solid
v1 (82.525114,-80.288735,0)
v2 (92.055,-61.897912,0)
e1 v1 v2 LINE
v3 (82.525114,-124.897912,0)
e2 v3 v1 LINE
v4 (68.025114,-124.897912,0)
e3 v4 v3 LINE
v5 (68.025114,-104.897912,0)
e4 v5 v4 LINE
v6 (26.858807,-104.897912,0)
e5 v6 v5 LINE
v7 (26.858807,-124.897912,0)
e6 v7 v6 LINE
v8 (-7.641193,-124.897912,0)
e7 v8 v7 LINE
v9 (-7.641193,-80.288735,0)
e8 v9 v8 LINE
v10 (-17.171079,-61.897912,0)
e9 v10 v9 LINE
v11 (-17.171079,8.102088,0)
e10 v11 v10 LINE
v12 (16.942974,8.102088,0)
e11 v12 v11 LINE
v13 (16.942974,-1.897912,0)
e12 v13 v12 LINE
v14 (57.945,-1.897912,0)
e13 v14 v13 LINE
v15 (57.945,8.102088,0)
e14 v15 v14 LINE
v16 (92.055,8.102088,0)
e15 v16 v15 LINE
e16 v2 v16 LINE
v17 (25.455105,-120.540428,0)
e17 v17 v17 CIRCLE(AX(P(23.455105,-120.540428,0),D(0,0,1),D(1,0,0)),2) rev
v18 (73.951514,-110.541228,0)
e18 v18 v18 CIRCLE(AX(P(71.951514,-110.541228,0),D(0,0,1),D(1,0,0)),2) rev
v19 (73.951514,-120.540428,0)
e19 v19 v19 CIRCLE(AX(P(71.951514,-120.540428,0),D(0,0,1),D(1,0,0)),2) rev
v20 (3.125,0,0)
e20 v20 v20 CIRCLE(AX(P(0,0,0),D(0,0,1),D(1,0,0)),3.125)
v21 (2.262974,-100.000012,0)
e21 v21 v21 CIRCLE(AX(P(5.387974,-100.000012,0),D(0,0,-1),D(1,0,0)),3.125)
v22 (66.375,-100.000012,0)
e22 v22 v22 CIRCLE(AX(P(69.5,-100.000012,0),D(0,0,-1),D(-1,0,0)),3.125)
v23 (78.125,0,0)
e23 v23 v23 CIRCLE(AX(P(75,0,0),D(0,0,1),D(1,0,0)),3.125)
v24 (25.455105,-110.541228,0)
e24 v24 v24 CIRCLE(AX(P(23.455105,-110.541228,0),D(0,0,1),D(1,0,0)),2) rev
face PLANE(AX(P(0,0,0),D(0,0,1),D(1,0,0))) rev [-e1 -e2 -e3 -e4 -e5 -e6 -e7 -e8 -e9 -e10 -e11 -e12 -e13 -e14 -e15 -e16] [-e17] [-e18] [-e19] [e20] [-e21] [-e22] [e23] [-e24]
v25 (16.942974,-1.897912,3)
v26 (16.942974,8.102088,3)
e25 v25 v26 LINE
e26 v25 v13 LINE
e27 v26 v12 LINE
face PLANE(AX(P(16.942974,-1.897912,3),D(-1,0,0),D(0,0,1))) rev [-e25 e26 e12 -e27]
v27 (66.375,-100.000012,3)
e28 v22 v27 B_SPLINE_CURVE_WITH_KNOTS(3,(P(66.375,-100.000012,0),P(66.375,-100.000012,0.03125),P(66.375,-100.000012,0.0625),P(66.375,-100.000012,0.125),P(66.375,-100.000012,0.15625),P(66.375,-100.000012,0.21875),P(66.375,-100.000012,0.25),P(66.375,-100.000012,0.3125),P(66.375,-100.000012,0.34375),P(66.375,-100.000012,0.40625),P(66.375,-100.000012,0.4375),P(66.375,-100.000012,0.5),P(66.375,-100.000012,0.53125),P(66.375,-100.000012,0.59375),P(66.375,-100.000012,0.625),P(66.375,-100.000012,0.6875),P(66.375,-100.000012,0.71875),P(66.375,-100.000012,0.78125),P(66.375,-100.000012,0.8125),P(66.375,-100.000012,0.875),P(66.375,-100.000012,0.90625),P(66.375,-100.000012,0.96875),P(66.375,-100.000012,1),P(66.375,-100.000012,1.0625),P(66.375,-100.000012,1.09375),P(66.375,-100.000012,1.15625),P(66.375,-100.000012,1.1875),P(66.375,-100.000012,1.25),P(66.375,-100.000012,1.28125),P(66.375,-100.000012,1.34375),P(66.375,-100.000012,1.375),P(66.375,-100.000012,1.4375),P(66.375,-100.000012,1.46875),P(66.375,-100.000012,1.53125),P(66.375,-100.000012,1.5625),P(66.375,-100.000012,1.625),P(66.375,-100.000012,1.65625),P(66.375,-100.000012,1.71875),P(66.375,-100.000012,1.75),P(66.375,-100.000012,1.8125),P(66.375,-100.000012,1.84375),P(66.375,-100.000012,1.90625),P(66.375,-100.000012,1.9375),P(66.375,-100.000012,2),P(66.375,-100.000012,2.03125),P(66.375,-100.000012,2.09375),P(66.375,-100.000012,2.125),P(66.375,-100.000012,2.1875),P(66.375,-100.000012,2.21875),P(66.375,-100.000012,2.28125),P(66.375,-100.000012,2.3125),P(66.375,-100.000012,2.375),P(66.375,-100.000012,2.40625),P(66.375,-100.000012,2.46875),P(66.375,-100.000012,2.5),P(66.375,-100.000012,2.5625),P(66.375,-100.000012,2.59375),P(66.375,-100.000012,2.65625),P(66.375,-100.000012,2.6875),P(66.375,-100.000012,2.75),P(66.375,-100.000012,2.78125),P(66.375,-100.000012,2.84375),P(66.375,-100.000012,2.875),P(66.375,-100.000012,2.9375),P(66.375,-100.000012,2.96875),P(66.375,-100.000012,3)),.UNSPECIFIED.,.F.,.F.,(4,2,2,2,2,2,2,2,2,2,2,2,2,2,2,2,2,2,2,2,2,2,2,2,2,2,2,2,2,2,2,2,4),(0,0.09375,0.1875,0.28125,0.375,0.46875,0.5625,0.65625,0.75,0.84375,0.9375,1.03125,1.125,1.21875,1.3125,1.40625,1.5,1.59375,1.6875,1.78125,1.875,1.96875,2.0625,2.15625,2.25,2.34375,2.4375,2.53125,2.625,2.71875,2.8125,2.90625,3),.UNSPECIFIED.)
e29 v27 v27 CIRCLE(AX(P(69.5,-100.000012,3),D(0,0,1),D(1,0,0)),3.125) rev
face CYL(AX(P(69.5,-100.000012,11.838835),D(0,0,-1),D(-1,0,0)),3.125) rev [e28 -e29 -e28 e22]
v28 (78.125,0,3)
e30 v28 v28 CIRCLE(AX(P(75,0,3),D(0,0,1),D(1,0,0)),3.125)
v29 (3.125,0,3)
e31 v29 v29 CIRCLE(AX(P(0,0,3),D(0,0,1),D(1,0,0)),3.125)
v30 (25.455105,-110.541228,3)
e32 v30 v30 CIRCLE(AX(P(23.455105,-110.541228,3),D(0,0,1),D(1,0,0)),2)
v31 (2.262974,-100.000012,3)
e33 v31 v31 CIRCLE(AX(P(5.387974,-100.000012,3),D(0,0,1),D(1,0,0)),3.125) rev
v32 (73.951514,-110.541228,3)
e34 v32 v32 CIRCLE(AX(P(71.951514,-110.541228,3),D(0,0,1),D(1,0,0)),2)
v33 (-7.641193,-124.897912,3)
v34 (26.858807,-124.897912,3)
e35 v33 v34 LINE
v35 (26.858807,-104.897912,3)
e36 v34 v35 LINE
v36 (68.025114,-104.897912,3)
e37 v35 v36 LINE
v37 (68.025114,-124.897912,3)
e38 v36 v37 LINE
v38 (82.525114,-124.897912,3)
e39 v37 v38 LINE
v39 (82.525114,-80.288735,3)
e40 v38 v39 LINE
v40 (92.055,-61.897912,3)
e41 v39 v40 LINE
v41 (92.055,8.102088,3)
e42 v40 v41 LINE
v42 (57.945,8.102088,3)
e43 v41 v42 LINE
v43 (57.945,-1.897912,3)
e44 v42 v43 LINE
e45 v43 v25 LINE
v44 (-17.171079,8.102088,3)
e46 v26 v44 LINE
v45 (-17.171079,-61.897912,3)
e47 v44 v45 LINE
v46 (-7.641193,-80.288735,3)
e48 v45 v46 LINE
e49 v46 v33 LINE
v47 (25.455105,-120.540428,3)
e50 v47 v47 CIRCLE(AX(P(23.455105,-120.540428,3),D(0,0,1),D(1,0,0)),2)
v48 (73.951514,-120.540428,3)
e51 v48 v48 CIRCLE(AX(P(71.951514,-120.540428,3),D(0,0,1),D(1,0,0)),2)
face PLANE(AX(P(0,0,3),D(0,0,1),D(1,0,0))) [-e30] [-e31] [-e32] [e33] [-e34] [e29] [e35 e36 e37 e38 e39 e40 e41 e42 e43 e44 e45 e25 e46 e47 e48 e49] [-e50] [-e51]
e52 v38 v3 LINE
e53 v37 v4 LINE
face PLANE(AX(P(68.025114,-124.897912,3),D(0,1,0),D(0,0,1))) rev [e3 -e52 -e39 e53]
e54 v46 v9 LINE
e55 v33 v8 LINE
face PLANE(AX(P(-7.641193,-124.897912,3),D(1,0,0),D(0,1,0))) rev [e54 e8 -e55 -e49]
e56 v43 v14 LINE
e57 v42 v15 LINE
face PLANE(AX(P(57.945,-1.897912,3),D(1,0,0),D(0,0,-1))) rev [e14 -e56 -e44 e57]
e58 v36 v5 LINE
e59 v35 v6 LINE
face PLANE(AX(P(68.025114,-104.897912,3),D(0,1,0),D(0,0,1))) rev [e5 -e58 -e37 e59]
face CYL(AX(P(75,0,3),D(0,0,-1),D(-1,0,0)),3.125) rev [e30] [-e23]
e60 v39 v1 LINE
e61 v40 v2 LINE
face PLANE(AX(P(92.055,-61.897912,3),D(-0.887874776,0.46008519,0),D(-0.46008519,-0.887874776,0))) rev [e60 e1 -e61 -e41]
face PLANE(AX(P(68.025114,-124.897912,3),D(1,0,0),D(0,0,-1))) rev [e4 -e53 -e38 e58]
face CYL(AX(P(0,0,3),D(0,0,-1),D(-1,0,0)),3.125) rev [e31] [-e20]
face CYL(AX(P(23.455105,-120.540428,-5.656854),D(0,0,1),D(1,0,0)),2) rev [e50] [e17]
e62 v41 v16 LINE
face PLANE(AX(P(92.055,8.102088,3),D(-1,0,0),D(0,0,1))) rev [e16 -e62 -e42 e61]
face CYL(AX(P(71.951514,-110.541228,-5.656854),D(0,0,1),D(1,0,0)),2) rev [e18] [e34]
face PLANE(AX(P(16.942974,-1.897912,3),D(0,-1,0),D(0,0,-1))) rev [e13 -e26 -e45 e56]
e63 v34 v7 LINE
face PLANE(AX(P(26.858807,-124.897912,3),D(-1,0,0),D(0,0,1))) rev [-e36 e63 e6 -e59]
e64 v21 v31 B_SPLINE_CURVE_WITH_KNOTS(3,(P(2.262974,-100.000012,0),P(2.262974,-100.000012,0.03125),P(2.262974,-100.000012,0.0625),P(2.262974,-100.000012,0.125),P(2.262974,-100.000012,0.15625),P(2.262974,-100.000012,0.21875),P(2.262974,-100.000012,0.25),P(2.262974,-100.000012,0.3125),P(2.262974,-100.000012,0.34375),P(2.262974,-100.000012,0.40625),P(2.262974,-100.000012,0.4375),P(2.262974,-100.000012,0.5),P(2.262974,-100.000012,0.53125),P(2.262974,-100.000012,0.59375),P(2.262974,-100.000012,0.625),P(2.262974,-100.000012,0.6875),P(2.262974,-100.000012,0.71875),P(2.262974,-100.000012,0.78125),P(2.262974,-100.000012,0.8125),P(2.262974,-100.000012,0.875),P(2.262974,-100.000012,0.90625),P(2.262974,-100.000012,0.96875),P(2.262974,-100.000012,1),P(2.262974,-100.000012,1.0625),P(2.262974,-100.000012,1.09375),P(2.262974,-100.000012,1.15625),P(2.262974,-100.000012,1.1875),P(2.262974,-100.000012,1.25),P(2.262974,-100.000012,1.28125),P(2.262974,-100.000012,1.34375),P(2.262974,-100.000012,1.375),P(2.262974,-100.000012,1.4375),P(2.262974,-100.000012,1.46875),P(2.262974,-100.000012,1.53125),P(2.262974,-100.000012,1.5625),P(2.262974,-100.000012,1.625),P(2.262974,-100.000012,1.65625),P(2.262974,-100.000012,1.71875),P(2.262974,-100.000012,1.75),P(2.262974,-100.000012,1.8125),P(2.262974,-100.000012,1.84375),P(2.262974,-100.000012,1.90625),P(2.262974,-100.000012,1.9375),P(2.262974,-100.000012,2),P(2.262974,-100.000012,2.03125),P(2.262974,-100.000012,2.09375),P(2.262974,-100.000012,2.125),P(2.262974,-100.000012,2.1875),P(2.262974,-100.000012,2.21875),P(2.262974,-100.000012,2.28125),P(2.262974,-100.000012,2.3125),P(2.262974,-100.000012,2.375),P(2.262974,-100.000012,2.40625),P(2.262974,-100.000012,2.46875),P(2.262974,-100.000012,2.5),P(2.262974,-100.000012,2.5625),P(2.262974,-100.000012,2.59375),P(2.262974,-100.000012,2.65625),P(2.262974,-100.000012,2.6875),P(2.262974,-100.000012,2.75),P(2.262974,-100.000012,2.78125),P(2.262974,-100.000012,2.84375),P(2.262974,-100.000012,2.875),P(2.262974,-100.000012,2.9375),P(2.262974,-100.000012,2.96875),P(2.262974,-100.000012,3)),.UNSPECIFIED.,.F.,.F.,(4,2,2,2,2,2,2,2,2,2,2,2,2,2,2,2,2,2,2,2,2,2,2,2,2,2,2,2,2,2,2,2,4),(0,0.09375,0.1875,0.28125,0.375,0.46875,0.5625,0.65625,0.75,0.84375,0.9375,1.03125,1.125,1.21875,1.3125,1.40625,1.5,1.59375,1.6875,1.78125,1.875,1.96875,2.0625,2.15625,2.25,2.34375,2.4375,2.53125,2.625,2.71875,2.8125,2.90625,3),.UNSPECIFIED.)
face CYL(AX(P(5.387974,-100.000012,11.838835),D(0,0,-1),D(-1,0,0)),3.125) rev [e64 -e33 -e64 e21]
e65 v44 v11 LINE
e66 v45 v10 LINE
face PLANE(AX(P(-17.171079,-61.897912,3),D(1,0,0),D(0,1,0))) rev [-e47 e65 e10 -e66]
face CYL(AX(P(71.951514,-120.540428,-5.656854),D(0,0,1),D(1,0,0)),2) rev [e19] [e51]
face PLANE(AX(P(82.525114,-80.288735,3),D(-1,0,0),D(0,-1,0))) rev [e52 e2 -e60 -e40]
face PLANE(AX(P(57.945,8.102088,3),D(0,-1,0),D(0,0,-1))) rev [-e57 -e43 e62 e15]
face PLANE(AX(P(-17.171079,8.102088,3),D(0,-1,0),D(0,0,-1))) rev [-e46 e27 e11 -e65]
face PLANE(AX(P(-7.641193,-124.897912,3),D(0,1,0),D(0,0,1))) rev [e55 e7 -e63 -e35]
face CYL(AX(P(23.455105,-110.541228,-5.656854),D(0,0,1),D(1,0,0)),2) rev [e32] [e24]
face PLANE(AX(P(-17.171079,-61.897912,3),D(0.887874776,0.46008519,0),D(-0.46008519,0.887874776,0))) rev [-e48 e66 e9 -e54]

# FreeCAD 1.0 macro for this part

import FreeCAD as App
import Part
import Sketcher
from FreeCAD import Vector


def add_polygon(sketch, points):
    """Adds a closed chain of lines whose ends are joined by coincident constraints."""
    first, n = sketch.GeometryCount, len(points)
    for a, b in zip(points, points[1:] + points[:1]):
        sketch.addGeometry(Part.LineSegment(App.Vector(*a, 0), App.Vector(*b, 0)), False)
    for i in range(n):
        sketch.addConstraint(Sketcher.Constraint("Coincident", first + i, 2, first + (i + 1) % n, 1))

doc = App.newDocument("Part")
body = doc.addObject("PartDesign::Body", "Body")

# Sketch on XY plane
sketch1 = body.newObject("Sketcher::SketchObject", "Sketch")
sketch1.AttachmentSupport = (doc.getObject("XY_Plane"), [""])
sketch1.MapMode = "FlatFace"
add_polygon(sketch1, [(16.9, 8.1), (-17.2, 8.1), (-17.2, -61.9), (-7.6, -80.3), (-7.6, -124.9), (26.9, -124.9), (26.9, -104.9), (68, -104.9), (68, -124.9), (82.5, -124.9), (82.5, -80.3), (92.1, -61.9), (92.1, 8.1), (57.9, 8.1), (57.9, -1.9), (16.9, -1.9)])  # lines 0-15
sketch1.addGeometry(Part.Circle(Vector(75, 0, 0), Vector(0, 0, 1), 3.1), False)  # 16
sketch1.addGeometry(Part.Circle(Vector(0, 0, 0), Vector(0, 0, 1), 3.1), False)  # 17
sketch1.addConstraint([
    Sketcher.Constraint("Horizontal", 0),
    Sketcher.Constraint("Vertical", 1),
    Sketcher.Constraint("Vertical", 3),
    Sketcher.Constraint("Horizontal", 4),
    Sketcher.Constraint("Vertical", 5),
    Sketcher.Constraint("Horizontal", 6),
    Sketcher.Constraint("Vertical", 7),
    Sketcher.Constraint("Horizontal", 8),
    Sketcher.Constraint("Vertical", 9),
    Sketcher.Constraint("Vertical", 11),
    Sketcher.Constraint("Horizontal", 12),
    Sketcher.Constraint("Vertical", 13),
    Sketcher.Constraint("Horizontal", 14),
    Sketcher.Constraint("Vertical", 15),
    Sketcher.Constraint("Coincident", 17, 3, -1, 1),
    Sketcher.Constraint("Equal", 16, 17),
    Sketcher.Constraint("PointOnObject", 16, 3, -1),
    Sketcher.Constraint("Horizontal", 4, 2, 7, 2),
    Sketcher.Constraint("Horizontal", 2, 2, 9, 2),
    Sketcher.Constraint("Horizontal", 1, 2, 10, 2),
    Sketcher.Constraint("Horizontal", 0, 2, 11, 2),
    Sketcher.Constraint("Equal", 2, 10),
    Sketcher.Constraint("Diameter", 16, 6.25),
    Sketcher.Constraint("DistanceY", 1, 2, 1, 1, 70.0),
    Sketcher.Constraint("DistanceY", 5, 1, 5, 2, 20.0),
    Sketcher.Constraint("DistanceY", 13, 2, 13, 1, 10.0),
    Sketcher.Constraint("DistanceX", 4, 1, 4, 2, 34.5),
    Sketcher.Constraint("DistanceX", 8, 1, 8, 2, 14.5),
    Sketcher.Constraint("DistanceX", -1, 1, 16, 3, 75.0),
    Sketcher.Constraint("DistanceY", 3, 2, 1, 2, 63.0),
    Sketcher.Constraint("DistanceX", 12, 2, 12, 1, 34.11),
    Sketcher.Constraint("DistanceX", -1, 1, 10, 2, 92.055),
    Sketcher.Constraint("DistanceX", 0, 2, 0, 1, 34.114052),
    Sketcher.Constraint("DistanceX", 6, 1, 6, 2, 41.166307),
    Sketcher.Constraint("DistanceX", 14, 2, 14, 1, 41.002026),
    Sketcher.Constraint("DistanceY", 3, 2, 3, 1, 44.609177),
    Sketcher.Constraint("DistanceY", -1, 1, 0, 2, 8.102088),
])
pad1 = body.newObject("PartDesign::Pad", "Pad")
pad1.Profile = sketch1
pad1.Length = 3

# Sketch on XY plane
sketch2 = body.newObject("Sketcher::SketchObject", "Sketch001")
sketch2.AttachmentSupport = (doc.getObject("XY_Plane"), [""])
sketch2.MapMode = "FlatFace"
sketch2.AttachmentOffset = App.Placement(Vector(0, 0, 3), App.Rotation())
sketch2.addGeometry([
    Part.Circle(Vector(72, -120.5, 0), Vector(0, 0, 1), 2),
    Part.Circle(Vector(72, -110.5, 0), Vector(0, 0, 1), 2),
    Part.Circle(Vector(23.5, -120.5, 0), Vector(0, 0, 1), 2),
    Part.Circle(Vector(23.5, -110.5, 0), Vector(0, 0, 1), 2),
], False)
sketch2.addConstraint([
    Sketcher.Constraint("Equal", 0, 1),
    Sketcher.Constraint("Equal", 1, 2),
    Sketcher.Constraint("Equal", 2, 3),
    Sketcher.Constraint("Horizontal", 0, 3, 2, 3),
    Sketcher.Constraint("Horizontal", 1, 3, 3, 3),
    Sketcher.Constraint("Vertical", 0, 3, 1, 3),
    Sketcher.Constraint("Vertical", 2, 3, 3, 3),
    Sketcher.Constraint("Diameter", 0, 4.0),
    Sketcher.Constraint("DistanceY", 0, 3, 1, 3, 9.9992),
    Sketcher.Constraint("DistanceX", 2, 3, 0, 3, 48.496409),
    Sketcher.Constraint("DistanceX", -1, 1, 0, 3, 71.951514),
    Sketcher.Constraint("DistanceY", 0, 3, -1, 1, 120.540428),
])
pocket1 = body.newObject("PartDesign::Pocket", "Pocket")
pocket1.Profile = sketch2
pocket1.Length = 3

# Sketch on XY plane
sketch3 = body.newObject("Sketcher::SketchObject", "Sketch002")
sketch3.AttachmentSupport = (doc.getObject("XY_Plane"), [""])
sketch3.MapMode = "FlatFace"
sketch3.addGeometry([
    Part.Circle(Vector(69.5, -100, 0), Vector(0, 0, 1), 3.1),
    Part.Circle(Vector(5.4, -100, 0), Vector(0, 0, 1), 3.1),
], False)
sketch3.addConstraint([
    Sketcher.Constraint("Equal", 0, 1),
    Sketcher.Constraint("Horizontal", 0, 3, 1, 3),
    Sketcher.Constraint("Diameter", 0, 6.25),
    Sketcher.Constraint("DistanceX", -1, 1, 0, 3, 69.5),
    Sketcher.Constraint("DistanceY", 0, 3, -1, 1, 100.000012),
    Sketcher.Constraint("DistanceX", -1, 1, 1, 3, 5.387974),
])
pocket2 = body.newObject("PartDesign::Pocket", "Pocket001")
pocket2.Profile = sketch3
pocket2.Length = 3
pocket2.Reversed = True

doc.recompute()
